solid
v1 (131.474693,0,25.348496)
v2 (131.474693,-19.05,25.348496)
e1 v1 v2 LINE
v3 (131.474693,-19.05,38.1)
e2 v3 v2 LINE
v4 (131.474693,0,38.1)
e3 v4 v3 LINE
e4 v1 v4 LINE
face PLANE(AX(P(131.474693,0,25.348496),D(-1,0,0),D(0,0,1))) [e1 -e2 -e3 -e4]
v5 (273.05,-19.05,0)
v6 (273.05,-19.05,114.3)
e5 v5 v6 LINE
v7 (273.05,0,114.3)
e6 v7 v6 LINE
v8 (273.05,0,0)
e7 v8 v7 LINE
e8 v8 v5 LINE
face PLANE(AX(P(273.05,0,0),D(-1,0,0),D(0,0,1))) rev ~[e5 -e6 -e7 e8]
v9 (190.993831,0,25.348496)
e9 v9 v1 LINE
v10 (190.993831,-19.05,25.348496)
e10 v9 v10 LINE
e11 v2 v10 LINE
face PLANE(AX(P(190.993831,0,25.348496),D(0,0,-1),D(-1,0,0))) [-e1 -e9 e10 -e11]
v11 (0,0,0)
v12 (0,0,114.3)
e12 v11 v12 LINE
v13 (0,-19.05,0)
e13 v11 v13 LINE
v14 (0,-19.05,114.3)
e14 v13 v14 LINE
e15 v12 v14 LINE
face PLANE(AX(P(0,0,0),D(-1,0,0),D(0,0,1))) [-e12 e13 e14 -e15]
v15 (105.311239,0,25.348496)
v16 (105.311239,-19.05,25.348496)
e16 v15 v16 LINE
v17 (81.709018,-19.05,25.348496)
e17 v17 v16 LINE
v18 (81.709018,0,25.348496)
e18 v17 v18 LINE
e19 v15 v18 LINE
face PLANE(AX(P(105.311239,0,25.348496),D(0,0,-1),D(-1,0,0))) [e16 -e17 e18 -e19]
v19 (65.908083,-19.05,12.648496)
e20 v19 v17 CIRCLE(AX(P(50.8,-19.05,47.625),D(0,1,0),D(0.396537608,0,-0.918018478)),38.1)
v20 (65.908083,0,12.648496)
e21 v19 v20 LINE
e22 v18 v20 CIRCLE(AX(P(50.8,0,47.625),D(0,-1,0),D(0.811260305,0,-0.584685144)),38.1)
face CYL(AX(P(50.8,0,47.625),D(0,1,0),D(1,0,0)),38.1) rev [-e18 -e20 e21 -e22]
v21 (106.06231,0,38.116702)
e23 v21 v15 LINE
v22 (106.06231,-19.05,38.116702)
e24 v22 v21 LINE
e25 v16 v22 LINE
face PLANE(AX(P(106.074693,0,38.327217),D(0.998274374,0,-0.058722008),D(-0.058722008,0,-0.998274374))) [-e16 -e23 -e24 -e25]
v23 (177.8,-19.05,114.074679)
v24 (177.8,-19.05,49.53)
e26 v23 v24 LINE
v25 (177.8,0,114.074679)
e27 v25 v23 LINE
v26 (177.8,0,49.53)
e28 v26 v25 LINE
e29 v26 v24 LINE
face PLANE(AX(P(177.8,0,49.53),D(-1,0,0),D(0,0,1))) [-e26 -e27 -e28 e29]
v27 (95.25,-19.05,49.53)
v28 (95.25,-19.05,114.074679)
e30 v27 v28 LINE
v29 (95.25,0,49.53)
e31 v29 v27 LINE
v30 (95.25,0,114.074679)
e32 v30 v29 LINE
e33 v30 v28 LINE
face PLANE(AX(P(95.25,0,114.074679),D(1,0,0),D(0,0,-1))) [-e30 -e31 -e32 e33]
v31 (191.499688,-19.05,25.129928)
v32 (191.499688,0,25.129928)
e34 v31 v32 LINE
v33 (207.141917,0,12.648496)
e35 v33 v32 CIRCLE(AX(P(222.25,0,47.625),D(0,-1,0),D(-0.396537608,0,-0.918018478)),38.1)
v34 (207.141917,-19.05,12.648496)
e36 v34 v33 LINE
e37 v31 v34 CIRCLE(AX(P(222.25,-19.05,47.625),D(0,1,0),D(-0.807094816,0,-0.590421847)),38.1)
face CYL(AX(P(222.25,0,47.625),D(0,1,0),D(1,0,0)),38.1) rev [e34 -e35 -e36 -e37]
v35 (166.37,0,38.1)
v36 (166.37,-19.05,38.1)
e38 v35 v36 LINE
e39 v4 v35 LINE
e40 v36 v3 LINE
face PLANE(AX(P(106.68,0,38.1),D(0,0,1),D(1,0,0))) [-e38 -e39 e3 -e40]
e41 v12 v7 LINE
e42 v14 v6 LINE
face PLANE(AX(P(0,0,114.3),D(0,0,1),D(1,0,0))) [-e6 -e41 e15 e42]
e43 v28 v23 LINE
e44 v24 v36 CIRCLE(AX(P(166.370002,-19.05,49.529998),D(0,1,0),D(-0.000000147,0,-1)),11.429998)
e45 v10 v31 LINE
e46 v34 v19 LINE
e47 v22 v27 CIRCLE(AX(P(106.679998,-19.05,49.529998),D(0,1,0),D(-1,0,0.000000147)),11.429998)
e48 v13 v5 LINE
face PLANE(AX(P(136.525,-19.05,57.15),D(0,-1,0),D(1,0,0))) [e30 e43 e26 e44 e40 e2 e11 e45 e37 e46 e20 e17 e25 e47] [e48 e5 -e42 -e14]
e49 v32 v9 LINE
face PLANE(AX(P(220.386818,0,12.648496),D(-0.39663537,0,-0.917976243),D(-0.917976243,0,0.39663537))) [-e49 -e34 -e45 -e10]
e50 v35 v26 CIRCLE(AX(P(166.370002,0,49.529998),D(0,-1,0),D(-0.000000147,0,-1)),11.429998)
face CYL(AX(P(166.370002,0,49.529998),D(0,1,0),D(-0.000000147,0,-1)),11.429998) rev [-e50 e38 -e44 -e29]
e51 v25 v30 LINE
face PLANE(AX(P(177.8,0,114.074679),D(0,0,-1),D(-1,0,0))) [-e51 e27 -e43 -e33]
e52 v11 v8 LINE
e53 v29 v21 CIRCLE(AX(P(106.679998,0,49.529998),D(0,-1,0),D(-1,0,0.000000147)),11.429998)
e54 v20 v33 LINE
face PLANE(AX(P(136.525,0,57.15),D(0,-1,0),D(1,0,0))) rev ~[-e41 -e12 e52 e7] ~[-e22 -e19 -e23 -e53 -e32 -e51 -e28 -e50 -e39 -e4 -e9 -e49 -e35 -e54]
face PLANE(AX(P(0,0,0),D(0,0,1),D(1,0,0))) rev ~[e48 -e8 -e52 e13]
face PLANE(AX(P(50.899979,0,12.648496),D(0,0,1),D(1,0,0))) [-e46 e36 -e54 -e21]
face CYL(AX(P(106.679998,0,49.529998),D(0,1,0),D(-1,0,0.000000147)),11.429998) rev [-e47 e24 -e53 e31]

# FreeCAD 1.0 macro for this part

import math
import FreeCAD as App
import Part
import Sketcher
from FreeCAD import Vector
Q = App.Units.Quantity

doc = App.newDocument("Part")
body = doc.addObject("PartDesign::Body", "Body")

sketch1 = body.newObject("Sketcher::SketchObject", "Sketch")
sketch1.AttachmentSupport = (doc.getObject("XZ_Plane"), [""])
sketch1.MapMode = "FlatFace"
sketch1.addGeometry([
    Part.LineSegment(Vector(0, 114, 0), Vector(0, 0, 0)),
    Part.LineSegment(Vector(0, 0, 0), Vector(273, 0, 0)),
    Part.LineSegment(Vector(273, 0, 0), Vector(273, 114, 0)),
    Part.LineSegment(Vector(273, 114, 0), Vector(0, 114, 0)),
], False)
sketch1.addConstraint([
    Sketcher.Constraint("Coincident", 0, 2, 1, 1),
    Sketcher.Constraint("Coincident", 1, 2, 2, 1),
    Sketcher.Constraint("Coincident", 2, 2, 3, 1),
    Sketcher.Constraint("Coincident", 3, 2, 0, 1),
    Sketcher.Constraint("Vertical", 0),
    Sketcher.Constraint("Horizontal", 1),
    Sketcher.Constraint("Vertical", 2),
    Sketcher.Constraint("Horizontal", 3),
    Sketcher.Constraint("Coincident", 0, 2, -1, 1),
    Sketcher.Constraint("DistanceY", 0, 2, 0, 1, Q("4.5 in")),
    Sketcher.Constraint("DistanceX", 1, 1, 1, 2, Q("10.75 in")),
])
pad1 = body.newObject("PartDesign::Pad", "Pad")
pad1.Profile = sketch1
pad1.Length = Q("0.75 in")

sketch2 = body.newObject("Sketcher::SketchObject", "Sketch001")
sketch2.AttachmentSupport = (doc.getObject("XZ_Plane"), [""])
sketch2.MapMode = "FlatFace"
sketch2.addGeometry([
    Part.Circle(Vector(51, 48, 0), Vector(0, 0, 1), 38),
    Part.Circle(Vector(222, 48, 0), Vector(0, 0, 1), 38),
], False)
sketch2.addConstraint([
    Sketcher.Constraint("Equal", 0, 1),
    Sketcher.Constraint("Horizontal", 0, 3, 1, 3),
    Sketcher.Constraint("Diameter", 0, Q("3 in")),
    Sketcher.Constraint("DistanceX", -1, 1, 0, 3, Q("2 in")),
    Sketcher.Constraint("DistanceX", -1, 1, 1, 3, Q("8.75 in")),
    Sketcher.Constraint("DistanceY", -1, 1, 0, 3, Q("1.875 in")),
])
pocket1 = body.newObject("PartDesign::Pocket", "Pocket")
pocket1.Profile = sketch2
pocket1.Length = Q("1 in")
pocket1.Reversed = True

sketch3 = body.newObject("Sketcher::SketchObject", "Sketch002")
sketch3.AttachmentSupport = (doc.getObject("XZ_Plane"), [""])
sketch3.MapMode = "FlatFace"
sketch3.addGeometry([
    Part.LineSegment(Vector(178, 114, 0), Vector(95, 114, 0)),
    Part.LineSegment(Vector(95, 114, 0), Vector(95, 50, 0)),
    Part.ArcOfCircle(Part.Circle(Vector(107, 50, 0), Vector(0, 0, 1), 11), math.radians(180), math.radians(270)),
    Part.LineSegment(Vector(107, 38, 0), Vector(166, 38, 0)),
    Part.ArcOfCircle(Part.Circle(Vector(166, 50, 0), Vector(0, 0, 1), 11), math.radians(-90), math.radians(0)),
    Part.LineSegment(Vector(178, 50, 0), Vector(178, 114, 0)),
], False)
sketch3.addConstraint([
    Sketcher.Constraint("Coincident", 0, 2, 1, 1),
    Sketcher.Constraint("Tangent", 1, 2, 2, 1),
    Sketcher.Constraint("Tangent", 2, 2, 3, 1),
    Sketcher.Constraint("Tangent", 3, 2, 4, 1),
    Sketcher.Constraint("Tangent", 4, 2, 5, 1),
    Sketcher.Constraint("Coincident", 5, 2, 0, 1),
    Sketcher.Constraint("Horizontal", 0),
    Sketcher.Constraint("Vertical", 1),
    Sketcher.Constraint("Horizontal", 3),
    Sketcher.Constraint("Vertical", 5),
    Sketcher.Constraint("Equal", 2, 4),
    Sketcher.Constraint("Radius", 2, Q("0.4499999 in")),
    Sketcher.Constraint("DistanceX", -1, 1, 4, 2, Q("7 in")),
    Sketcher.Constraint("DistanceX", 0, 2, 0, 1, Q("3.25 in")),
    Sketcher.Constraint("DistanceY", -1, 1, 2, 2, Q("1.5 in")),
    Sketcher.Constraint("DistanceY", 1, 2, 1, 1, Q("64.544679 mm")),
])
pocket2 = body.newObject("PartDesign::Pocket", "Pocket001")
pocket2.Profile = sketch3
pocket2.Length = Q("1 in")

sketch4 = body.newObject("Sketcher::SketchObject", "Sketch003")
sketch4.AttachmentSupport = (doc.getObject("XZ_Plane"), [""])
sketch4.MapMode = "FlatFace"
sketch4.addGeometry([
    Part.LineSegment(Vector(178, 114, 0), Vector(95, 114, 0)),
    Part.LineSegment(Vector(95, 114, 0), Vector(95, 50, 0)),
    Part.ArcOfCircle(Part.Circle(Vector(107, 50, 0), Vector(0, 0, 1), 11), math.radians(180), math.radians(270)),
    Part.LineSegment(Vector(107, 38, 0), Vector(166, 38, 0)),
    Part.ArcOfCircle(Part.Circle(Vector(166, 50, 0), Vector(0, 0, 1), 11), math.radians(-90), math.radians(0)),
    Part.LineSegment(Vector(178, 50, 0), Vector(178, 114, 0)),
], False)
sketch4.addConstraint([
    Sketcher.Constraint("Coincident", 0, 2, 1, 1),
    Sketcher.Constraint("Tangent", 1, 2, 2, 1),
    Sketcher.Constraint("Tangent", 2, 2, 3, 1),
    Sketcher.Constraint("Tangent", 3, 2, 4, 1),
    Sketcher.Constraint("Tangent", 4, 2, 5, 1),
    Sketcher.Constraint("Coincident", 5, 2, 0, 1),
    Sketcher.Constraint("Horizontal", 0),
    Sketcher.Constraint("Vertical", 1),
    Sketcher.Constraint("Horizontal", 3),
    Sketcher.Constraint("Vertical", 5),
    Sketcher.Constraint("Equal", 2, 4),
    Sketcher.Constraint("Radius", 2, Q("0.4499999 in")),
    Sketcher.Constraint("DistanceX", -1, 1, 4, 2, Q("7 in")),
    Sketcher.Constraint("DistanceX", 0, 2, 0, 1, Q("3.25 in")),
    Sketcher.Constraint("DistanceY", -1, 1, 2, 2, Q("1.5 in")),
    Sketcher.Constraint("DistanceY", 1, 2, 1, 1, Q("64.544679 mm")),
])
pocket3 = body.newObject("PartDesign::Pocket", "Pocket002")
pocket3.Profile = sketch4
pocket3.Length = Q("1 in")
pocket3.Reversed = True

sketch5 = body.newObject("Sketcher::SketchObject", "Sketch004")
sketch5.AttachmentSupport = (doc.getObject("XZ_Plane"), [""])
sketch5.MapMode = "FlatFace"
sketch5.addGeometry([
    Part.LineSegment(Vector(131, 38, 0), Vector(106, 38, 0)),
    Part.LineSegment(Vector(106, 38, 0), Vector(105, 25, 0)),
    Part.LineSegment(Vector(105, 25, 0), Vector(80, 25, 0)),
    Part.LineSegment(Vector(80, 25, 0), Vector(51, 13, 0)),
    Part.LineSegment(Vector(51, 13, 0), Vector(220, 13, 0)),
    Part.LineSegment(Vector(220, 13, 0), Vector(191, 25, 0)),
    Part.LineSegment(Vector(191, 25, 0), Vector(131, 25, 0)),
    Part.LineSegment(Vector(131, 25, 0), Vector(131, 38, 0)),
], False)
sketch5.addConstraint([
    Sketcher.Constraint("Coincident", 0, 2, 1, 1),
    Sketcher.Constraint("Coincident", 1, 2, 2, 1),
    Sketcher.Constraint("Coincident", 2, 2, 3, 1),
    Sketcher.Constraint("Coincident", 3, 2, 4, 1),
    Sketcher.Constraint("Coincident", 4, 2, 5, 1),
    Sketcher.Constraint("Coincident", 5, 2, 6, 1),
    Sketcher.Constraint("Coincident", 6, 2, 7, 1),
    Sketcher.Constraint("Coincident", 7, 2, 0, 1),
    Sketcher.Constraint("Horizontal", 0),
    Sketcher.Constraint("Horizontal", 2),
    Sketcher.Constraint("Horizontal", 4),
    Sketcher.Constraint("Horizontal", 6),
    Sketcher.Constraint("Vertical", 7),
    Sketcher.Constraint("Horizontal", 2, 2, 5, 2),
    Sketcher.Constraint("Equal", 0, 2),
    Sketcher.Constraint("DistanceX", 0, 2, 0, 1, Q("1 in")),
    Sketcher.Constraint("DistanceY", 3, 2, 2, 2, Q("0.5 in")),
    Sketcher.Constraint("DistanceX", 4, 1, 4, 2, Q("169.486839 mm")),
    Sketcher.Constraint("DistanceY", 7, 1, 7, 2, Q("12.978721 mm")),
    Sketcher.Constraint("Distance", 3, Q("31.669279 mm")),
    Sketcher.Constraint("DistanceX", 6, 2, 6, 1, Q("59.519138 mm")),
    Sketcher.Constraint("DistanceX", -1, 1, 1, 2, Q("105.311239 mm")),
    Sketcher.Constraint("DistanceX", -1, 1, 5, 2, Q("190.993831 mm")),
    Sketcher.Constraint("DistanceY", -1, 1, 0, 2, Q("38.327217 mm")),
])
pocket4 = body.newObject("PartDesign::Pocket", "Pocket003")
pocket4.Profile = sketch5
pocket4.Length = Q("1 in")
pocket4.Reversed = True

doc.recompute()
